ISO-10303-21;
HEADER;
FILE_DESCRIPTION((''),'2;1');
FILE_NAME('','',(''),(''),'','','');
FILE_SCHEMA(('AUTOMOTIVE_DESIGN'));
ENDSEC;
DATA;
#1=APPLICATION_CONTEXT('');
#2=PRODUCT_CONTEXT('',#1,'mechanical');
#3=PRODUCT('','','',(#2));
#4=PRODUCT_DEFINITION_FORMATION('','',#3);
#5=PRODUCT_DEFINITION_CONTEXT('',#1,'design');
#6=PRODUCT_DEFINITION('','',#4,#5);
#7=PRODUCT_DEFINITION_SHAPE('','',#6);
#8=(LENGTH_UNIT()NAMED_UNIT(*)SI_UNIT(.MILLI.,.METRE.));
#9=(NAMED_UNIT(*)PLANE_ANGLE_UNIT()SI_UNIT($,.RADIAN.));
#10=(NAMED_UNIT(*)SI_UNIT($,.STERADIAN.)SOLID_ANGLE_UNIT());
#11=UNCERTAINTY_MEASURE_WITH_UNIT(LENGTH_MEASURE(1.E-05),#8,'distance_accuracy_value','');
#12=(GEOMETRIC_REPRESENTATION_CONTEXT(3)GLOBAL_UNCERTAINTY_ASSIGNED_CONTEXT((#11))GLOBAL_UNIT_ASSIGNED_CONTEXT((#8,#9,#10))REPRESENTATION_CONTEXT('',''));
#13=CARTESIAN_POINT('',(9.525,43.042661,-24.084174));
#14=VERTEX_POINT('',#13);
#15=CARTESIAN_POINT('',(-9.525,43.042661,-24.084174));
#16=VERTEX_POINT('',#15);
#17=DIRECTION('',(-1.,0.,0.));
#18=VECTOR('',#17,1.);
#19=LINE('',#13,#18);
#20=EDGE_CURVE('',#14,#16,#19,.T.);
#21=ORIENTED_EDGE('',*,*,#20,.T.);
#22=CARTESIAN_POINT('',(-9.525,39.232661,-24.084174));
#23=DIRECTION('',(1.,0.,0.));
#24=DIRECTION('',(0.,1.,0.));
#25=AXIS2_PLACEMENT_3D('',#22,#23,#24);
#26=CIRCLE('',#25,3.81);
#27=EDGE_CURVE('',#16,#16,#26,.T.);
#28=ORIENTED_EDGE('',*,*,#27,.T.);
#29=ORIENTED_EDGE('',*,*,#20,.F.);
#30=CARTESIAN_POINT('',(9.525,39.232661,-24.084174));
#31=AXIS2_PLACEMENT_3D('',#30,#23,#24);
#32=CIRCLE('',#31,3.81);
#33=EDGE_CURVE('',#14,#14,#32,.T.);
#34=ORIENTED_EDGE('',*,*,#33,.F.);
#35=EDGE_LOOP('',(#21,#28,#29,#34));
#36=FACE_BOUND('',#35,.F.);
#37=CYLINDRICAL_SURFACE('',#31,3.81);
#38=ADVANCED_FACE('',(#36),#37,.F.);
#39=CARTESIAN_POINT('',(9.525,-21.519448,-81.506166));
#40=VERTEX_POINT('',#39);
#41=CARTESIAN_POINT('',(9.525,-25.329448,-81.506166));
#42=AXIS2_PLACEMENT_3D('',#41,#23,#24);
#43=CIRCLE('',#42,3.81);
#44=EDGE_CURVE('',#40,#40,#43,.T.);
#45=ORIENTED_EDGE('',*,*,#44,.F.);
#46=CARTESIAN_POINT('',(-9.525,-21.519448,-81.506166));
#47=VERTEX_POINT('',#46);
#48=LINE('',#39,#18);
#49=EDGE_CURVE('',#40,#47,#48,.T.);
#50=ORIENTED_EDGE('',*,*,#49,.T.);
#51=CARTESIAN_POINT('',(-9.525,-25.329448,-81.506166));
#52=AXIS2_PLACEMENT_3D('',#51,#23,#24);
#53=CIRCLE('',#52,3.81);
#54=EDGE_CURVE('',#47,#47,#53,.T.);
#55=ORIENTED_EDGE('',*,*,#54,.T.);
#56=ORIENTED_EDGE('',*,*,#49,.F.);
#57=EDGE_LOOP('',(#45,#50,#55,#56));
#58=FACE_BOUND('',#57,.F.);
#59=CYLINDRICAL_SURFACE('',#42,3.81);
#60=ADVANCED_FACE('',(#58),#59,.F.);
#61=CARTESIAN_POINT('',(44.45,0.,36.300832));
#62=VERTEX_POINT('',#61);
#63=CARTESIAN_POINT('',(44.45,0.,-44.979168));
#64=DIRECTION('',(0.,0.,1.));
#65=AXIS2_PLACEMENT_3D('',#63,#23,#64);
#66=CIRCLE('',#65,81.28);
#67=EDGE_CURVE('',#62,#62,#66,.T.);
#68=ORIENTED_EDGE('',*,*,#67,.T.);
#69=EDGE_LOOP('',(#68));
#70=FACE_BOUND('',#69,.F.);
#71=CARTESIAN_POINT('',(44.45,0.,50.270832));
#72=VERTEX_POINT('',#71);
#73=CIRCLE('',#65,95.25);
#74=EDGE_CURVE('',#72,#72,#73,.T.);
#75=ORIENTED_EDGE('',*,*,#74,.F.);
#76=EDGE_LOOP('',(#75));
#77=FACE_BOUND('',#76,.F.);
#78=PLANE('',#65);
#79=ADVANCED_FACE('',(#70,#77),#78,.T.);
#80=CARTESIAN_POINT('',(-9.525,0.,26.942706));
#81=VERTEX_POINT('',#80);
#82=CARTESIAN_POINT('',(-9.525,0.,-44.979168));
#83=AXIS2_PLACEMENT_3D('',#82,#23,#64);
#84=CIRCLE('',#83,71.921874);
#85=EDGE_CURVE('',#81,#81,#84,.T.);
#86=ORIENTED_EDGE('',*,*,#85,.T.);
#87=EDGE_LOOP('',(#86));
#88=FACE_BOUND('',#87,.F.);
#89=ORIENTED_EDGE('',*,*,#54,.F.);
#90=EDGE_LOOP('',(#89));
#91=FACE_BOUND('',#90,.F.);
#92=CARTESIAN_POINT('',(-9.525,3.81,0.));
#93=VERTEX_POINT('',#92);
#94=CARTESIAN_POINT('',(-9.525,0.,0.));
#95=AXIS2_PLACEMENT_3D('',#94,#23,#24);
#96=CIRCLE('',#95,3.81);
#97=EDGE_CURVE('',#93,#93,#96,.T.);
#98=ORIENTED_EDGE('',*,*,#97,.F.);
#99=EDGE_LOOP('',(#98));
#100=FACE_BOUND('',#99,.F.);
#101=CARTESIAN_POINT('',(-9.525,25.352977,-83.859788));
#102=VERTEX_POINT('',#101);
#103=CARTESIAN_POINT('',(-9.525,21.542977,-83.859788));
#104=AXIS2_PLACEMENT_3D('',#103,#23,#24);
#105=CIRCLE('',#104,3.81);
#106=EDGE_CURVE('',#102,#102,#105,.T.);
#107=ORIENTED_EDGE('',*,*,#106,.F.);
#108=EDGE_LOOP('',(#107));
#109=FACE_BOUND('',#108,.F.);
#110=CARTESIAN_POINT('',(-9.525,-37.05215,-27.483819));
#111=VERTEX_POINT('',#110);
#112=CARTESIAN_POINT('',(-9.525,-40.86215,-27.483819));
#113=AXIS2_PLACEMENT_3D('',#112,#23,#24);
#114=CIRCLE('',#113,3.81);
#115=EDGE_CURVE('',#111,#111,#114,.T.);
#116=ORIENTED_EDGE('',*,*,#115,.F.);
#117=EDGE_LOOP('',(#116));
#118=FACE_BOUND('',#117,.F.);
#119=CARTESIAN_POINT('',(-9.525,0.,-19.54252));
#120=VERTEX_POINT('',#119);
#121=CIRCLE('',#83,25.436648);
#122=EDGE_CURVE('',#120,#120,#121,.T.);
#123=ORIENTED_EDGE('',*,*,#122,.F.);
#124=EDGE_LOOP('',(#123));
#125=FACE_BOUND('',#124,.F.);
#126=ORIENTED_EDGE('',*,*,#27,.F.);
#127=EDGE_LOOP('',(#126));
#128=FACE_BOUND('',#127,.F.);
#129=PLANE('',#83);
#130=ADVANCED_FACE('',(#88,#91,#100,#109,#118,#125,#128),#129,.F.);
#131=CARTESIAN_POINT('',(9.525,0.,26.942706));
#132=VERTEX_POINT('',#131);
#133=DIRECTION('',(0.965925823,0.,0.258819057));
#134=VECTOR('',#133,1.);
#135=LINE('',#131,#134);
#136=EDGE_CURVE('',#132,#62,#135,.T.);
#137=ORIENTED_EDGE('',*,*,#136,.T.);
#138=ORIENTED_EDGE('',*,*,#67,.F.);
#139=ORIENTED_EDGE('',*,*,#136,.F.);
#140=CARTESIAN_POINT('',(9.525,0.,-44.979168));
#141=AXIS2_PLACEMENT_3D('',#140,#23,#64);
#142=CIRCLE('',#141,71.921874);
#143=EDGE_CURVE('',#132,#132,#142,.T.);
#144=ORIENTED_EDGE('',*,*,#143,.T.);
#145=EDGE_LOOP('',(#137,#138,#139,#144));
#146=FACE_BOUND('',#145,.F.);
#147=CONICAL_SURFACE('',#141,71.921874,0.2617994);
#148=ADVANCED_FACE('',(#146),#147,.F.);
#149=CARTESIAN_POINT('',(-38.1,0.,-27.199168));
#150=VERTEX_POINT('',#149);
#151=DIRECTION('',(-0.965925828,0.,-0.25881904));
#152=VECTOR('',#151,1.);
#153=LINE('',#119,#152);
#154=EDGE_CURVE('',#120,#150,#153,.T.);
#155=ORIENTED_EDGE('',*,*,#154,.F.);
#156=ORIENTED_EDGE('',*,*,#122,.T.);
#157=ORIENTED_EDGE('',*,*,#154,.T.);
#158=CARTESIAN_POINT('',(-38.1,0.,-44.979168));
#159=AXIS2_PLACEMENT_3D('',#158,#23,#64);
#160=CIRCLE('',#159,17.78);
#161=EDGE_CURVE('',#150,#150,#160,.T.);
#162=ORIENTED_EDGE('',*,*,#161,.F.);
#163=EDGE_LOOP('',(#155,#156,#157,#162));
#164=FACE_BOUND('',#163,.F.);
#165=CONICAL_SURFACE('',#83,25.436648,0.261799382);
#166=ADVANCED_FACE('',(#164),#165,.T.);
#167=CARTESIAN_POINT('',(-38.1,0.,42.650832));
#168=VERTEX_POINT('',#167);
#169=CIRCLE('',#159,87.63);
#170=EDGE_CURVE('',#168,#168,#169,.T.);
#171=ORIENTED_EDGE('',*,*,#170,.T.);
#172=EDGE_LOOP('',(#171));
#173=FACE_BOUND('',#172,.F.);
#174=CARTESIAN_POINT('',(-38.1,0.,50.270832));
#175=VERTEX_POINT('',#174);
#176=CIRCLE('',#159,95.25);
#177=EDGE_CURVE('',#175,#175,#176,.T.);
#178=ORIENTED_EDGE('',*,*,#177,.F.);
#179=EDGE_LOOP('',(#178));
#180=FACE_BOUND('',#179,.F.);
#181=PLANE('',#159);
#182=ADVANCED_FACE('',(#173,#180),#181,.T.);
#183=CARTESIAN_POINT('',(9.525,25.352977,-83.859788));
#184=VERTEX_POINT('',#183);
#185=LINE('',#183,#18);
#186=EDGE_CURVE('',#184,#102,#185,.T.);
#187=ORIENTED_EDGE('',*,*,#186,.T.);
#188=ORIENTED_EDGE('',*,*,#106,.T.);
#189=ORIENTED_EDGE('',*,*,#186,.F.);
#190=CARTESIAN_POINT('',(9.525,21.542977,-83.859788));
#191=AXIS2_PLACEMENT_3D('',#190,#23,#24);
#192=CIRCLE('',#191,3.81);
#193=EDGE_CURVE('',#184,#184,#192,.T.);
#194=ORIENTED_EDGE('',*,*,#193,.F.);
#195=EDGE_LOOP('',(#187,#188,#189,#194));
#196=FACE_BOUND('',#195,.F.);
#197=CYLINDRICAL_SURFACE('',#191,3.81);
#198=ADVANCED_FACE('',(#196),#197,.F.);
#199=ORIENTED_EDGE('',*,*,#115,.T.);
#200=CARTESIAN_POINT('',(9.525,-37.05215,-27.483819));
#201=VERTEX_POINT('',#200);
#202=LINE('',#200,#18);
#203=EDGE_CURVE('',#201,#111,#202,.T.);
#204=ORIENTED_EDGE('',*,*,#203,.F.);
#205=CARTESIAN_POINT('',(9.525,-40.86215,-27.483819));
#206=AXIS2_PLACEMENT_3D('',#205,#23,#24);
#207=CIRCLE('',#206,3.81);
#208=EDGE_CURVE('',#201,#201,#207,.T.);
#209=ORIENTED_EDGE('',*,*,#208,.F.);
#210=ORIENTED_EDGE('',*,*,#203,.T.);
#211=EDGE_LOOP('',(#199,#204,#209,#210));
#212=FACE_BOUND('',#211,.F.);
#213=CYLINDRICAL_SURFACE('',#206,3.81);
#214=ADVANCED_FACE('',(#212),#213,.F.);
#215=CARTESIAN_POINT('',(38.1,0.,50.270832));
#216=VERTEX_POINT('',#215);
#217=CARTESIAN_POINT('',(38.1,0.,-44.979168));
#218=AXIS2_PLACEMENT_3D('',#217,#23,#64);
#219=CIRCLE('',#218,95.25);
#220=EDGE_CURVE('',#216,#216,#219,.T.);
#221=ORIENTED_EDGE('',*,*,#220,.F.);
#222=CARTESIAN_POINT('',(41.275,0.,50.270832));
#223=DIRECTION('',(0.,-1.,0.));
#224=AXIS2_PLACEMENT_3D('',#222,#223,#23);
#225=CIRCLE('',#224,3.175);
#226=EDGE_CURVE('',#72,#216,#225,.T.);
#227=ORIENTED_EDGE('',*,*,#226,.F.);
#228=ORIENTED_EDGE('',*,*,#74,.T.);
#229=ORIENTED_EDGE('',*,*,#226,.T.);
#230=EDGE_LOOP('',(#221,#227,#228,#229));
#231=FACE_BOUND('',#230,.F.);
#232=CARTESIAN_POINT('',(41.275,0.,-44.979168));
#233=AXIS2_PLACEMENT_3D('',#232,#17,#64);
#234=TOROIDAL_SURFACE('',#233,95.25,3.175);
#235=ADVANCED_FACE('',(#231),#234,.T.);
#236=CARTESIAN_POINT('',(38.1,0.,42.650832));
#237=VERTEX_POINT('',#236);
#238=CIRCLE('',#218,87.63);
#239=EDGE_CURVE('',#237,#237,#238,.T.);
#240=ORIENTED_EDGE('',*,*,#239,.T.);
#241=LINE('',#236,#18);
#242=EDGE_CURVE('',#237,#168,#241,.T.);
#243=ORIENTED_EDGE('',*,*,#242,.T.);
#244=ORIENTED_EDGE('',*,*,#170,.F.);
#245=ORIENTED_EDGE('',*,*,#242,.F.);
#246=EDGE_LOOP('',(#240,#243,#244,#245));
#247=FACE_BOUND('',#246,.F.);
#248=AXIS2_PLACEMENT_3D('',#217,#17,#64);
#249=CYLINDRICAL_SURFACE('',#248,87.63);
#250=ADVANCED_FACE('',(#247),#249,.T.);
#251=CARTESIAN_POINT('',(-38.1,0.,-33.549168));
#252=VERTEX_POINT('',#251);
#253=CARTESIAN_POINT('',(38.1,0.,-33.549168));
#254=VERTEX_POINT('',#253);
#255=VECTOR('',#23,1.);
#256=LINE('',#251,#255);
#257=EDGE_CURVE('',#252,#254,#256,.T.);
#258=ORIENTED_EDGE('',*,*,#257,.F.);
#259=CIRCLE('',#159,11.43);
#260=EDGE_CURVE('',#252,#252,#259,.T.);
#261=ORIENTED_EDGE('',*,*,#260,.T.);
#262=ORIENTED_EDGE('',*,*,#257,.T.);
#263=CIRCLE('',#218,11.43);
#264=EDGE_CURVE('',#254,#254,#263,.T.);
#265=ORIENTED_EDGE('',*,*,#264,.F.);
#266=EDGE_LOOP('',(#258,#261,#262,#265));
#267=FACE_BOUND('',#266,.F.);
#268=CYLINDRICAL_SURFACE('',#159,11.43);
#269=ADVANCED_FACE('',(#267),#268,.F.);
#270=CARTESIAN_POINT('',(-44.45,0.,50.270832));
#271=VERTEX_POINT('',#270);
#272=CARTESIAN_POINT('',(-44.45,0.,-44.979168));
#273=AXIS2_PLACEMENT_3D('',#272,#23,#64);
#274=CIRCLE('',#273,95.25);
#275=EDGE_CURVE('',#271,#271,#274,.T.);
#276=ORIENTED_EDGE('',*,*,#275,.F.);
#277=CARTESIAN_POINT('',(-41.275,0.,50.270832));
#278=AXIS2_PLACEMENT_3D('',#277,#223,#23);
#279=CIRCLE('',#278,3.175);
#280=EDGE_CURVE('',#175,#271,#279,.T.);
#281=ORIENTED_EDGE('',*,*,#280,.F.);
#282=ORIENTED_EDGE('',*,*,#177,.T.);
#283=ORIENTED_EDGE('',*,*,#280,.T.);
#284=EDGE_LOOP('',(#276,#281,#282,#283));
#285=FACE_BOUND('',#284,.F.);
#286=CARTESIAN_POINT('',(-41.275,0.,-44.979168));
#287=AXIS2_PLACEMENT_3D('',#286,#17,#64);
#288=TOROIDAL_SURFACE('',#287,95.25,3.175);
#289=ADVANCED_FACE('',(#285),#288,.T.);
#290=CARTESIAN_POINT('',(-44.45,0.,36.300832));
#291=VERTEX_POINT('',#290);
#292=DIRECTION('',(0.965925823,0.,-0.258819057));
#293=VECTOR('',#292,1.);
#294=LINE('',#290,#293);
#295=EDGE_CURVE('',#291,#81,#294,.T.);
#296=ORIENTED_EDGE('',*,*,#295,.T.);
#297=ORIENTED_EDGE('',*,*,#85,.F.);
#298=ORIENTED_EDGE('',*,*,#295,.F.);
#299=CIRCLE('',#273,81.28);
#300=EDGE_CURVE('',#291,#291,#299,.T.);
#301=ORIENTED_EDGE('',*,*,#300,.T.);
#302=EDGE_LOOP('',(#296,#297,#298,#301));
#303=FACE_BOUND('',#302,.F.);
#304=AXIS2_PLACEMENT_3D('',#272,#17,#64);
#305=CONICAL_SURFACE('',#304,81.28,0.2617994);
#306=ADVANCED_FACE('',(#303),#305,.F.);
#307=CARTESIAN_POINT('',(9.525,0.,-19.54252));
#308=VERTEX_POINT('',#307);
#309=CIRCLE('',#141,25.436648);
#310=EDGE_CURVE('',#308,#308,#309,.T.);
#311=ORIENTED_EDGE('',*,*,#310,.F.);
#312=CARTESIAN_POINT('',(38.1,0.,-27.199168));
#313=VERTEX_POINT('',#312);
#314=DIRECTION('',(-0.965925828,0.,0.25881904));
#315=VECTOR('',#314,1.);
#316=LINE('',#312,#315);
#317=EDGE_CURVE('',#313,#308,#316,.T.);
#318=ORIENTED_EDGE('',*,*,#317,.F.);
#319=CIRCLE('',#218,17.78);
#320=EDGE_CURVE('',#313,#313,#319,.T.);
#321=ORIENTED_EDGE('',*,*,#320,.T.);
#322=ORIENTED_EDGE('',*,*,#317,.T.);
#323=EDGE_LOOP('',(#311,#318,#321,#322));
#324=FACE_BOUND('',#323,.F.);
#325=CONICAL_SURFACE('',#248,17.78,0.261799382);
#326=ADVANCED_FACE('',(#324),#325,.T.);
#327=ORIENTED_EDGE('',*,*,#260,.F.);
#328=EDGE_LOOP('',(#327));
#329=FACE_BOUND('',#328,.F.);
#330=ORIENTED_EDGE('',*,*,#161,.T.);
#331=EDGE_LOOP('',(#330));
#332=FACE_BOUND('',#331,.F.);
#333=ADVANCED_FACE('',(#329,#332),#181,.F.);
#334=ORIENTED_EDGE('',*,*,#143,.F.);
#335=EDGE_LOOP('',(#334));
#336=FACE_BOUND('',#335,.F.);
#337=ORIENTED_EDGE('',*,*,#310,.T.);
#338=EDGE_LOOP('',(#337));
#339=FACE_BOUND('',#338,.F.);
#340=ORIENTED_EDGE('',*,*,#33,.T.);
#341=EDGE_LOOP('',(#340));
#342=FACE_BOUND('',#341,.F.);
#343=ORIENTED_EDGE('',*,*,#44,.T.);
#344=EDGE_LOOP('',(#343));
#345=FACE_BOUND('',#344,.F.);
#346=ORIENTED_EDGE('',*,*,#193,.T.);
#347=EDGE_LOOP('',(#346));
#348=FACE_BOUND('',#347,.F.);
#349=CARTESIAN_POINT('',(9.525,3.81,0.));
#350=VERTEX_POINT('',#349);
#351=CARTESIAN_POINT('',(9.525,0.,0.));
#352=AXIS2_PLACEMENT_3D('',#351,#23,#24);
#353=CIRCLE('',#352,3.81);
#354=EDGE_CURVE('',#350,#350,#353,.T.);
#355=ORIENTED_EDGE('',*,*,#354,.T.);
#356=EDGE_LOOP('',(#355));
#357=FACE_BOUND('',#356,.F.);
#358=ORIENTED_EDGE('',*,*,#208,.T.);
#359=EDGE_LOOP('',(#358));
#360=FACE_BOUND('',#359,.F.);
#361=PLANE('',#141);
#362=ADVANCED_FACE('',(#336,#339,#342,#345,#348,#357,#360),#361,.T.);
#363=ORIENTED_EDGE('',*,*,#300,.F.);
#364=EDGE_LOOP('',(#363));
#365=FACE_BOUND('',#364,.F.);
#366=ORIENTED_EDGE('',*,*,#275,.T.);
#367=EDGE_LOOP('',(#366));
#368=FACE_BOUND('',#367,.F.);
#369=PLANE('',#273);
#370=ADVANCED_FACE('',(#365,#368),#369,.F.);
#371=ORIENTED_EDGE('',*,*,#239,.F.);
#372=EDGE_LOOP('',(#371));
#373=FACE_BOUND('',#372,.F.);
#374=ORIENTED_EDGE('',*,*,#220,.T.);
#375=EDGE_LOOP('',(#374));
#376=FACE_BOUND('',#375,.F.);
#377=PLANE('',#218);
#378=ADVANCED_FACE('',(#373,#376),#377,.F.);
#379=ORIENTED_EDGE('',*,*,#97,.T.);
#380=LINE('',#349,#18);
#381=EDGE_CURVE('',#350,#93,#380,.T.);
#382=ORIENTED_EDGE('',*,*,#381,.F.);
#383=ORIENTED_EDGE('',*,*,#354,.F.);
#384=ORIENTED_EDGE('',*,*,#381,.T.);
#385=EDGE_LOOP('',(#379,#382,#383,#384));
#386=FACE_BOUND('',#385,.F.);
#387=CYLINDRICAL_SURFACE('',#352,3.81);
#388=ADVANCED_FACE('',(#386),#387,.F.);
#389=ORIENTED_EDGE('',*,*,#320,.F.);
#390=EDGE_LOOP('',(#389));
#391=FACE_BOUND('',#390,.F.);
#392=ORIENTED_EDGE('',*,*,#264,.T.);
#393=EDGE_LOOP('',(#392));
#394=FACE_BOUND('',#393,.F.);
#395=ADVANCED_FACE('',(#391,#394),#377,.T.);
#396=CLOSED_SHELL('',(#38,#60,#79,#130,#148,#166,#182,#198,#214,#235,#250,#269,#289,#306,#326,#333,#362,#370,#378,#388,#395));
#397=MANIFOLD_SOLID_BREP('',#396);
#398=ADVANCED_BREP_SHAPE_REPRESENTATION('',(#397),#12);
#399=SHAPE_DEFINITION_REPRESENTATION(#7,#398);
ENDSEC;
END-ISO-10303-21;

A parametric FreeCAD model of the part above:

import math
import FreeCAD as App
import Part
import Sketcher
Q = App.Units.Quantity

doc = App.newDocument("Part")
body = doc.addObject("PartDesign::Body", "Body")

# Sketch on XZ plane
sketch1 = body.newObject("Sketcher::SketchObject", "Sketch")
sketch1.AttachmentSupport = (doc.getObject("XZ_Plane"), [""])
sketch1.MapMode = "FlatFace"
sketch1.addGeometry(Part.LineSegment(App.Vector(-38.1, -27.2, 0), App.Vector(-38.1, -33.5, 0)), False)
sketch1.addGeometry(Part.LineSegment(App.Vector(-38.1, -33.5, 0), App.Vector(38.1, -33.5, 0)), False)
sketch1.addGeometry(Part.LineSegment(App.Vector(38.1, -33.5, 0), App.Vector(38.1, -27.2, 0)), False)
sketch1.addGeometry(Part.LineSegment(App.Vector(38.1, -27.2, 0), App.Vector(9.5, -19.5, 0)), False)
sketch1.addGeometry(Part.LineSegment(App.Vector(9.5, -19.5, 0), App.Vector(9.5, 26.9, 0)), False)
sketch1.addGeometry(Part.LineSegment(App.Vector(9.5, 26.9, 0), App.Vector(44.5, 36.3, 0)), False)
sketch1.addGeometry(Part.LineSegment(App.Vector(44.5, 36.3, 0), App.Vector(44.5, 50.3, 0)), False)
sketch1.addGeometry(Part.ArcOfCircle(Part.Circle(App.Vector(41.3, 50.3, 0), App.Vector(0, 0, 1), 3.2), math.radians(0), math.radians(180)), False)
sketch1.addGeometry(Part.LineSegment(App.Vector(38.1, 50.3, 0), App.Vector(38.1, 42.7, 0)), False)
sketch1.addGeometry(Part.LineSegment(App.Vector(38.1, 42.7, 0), App.Vector(-38.1, 42.7, 0)), False)
sketch1.addGeometry(Part.LineSegment(App.Vector(-38.1, 42.7, 0), App.Vector(-38.1, 50.3, 0)), False)
sketch1.addGeometry(Part.ArcOfCircle(Part.Circle(App.Vector(-41.3, 50.3, 0), App.Vector(0, 0, 1), 3.2), math.radians(0), math.radians(180)), False)
sketch1.addGeometry(Part.LineSegment(App.Vector(-44.5, 50.3, 0), App.Vector(-44.5, 36.3, 0)), False)
sketch1.addGeometry(Part.LineSegment(App.Vector(-44.5, 36.3, 0), App.Vector(-9.5, 26.9, 0)), False)
sketch1.addGeometry(Part.LineSegment(App.Vector(-9.5, 26.9, 0), App.Vector(-9.5, -19.5, 0)), False)
sketch1.addGeometry(Part.LineSegment(App.Vector(-9.5, -19.5, 0), App.Vector(-38.1, -27.2, 0)), False)
sketch1.addGeometry(Part.LineSegment(App.Vector(-44.5, -45, 0), App.Vector(44.5, -45, 0)), True)  # axis
sketch1.addConstraint(Sketcher.Constraint("Coincident", 0, 2, 1, 1))
sketch1.addConstraint(Sketcher.Constraint("Coincident", 1, 2, 2, 1))
sketch1.addConstraint(Sketcher.Constraint("Coincident", 2, 2, 3, 1))
sketch1.addConstraint(Sketcher.Constraint("Coincident", 3, 2, 4, 1))
sketch1.addConstraint(Sketcher.Constraint("Coincident", 4, 2, 5, 1))
sketch1.addConstraint(Sketcher.Constraint("Coincident", 5, 2, 6, 1))
sketch1.addConstraint(Sketcher.Constraint("Tangent", 6, 2, 7, 1))
sketch1.addConstraint(Sketcher.Constraint("Tangent", 7, 2, 8, 1))
sketch1.addConstraint(Sketcher.Constraint("Coincident", 8, 2, 9, 1))
sketch1.addConstraint(Sketcher.Constraint("Coincident", 9, 2, 10, 1))
sketch1.addConstraint(Sketcher.Constraint("Tangent", 10, 2, 11, 1))
sketch1.addConstraint(Sketcher.Constraint("Tangent", 11, 2, 12, 1))
sketch1.addConstraint(Sketcher.Constraint("Coincident", 12, 2, 13, 1))
sketch1.addConstraint(Sketcher.Constraint("Coincident", 13, 2, 14, 1))
sketch1.addConstraint(Sketcher.Constraint("Coincident", 14, 2, 15, 1))
sketch1.addConstraint(Sketcher.Constraint("Coincident", 15, 2, 0, 1))
sketch1.addConstraint(Sketcher.Constraint("Vertical", 0))
sketch1.addConstraint(Sketcher.Constraint("Horizontal", 1))
sketch1.addConstraint(Sketcher.Constraint("Vertical", 2))
sketch1.addConstraint(Sketcher.Constraint("Vertical", 4))
sketch1.addConstraint(Sketcher.Constraint("Vertical", 6))
sketch1.addConstraint(Sketcher.Constraint("Vertical", 8))
sketch1.addConstraint(Sketcher.Constraint("Horizontal", 9))
sketch1.addConstraint(Sketcher.Constraint("Vertical", 10))
sketch1.addConstraint(Sketcher.Constraint("Vertical", 12))
sketch1.addConstraint(Sketcher.Constraint("Vertical", 14))
sketch1.addConstraint(Sketcher.Constraint("Horizontal", 16))
sketch1.addConstraint(Sketcher.Constraint("Equal", 7, 11))
sketch1.addConstraint(Sketcher.Constraint("Symmetric", 7, 3, 11, 3, -2))
sketch1.addConstraint(Sketcher.Constraint("Symmetric", 4, 2, 13, 2, -2))
sketch1.addConstraint(Sketcher.Constraint("Symmetric", 2, 2, 15, 2, -2))
sketch1.addConstraint(Sketcher.Constraint("Parallel", 3, 13))
sketch1.addConstraint(Sketcher.Constraint("Parallel", 5, 15))
sketch1.addConstraint(Sketcher.Constraint("Horizontal", 5, 2, 12, 2))
sketch1.addConstraint(Sketcher.Constraint("Vertical", 2, 2, 7, 2))
sketch1.addConstraint(Sketcher.Constraint("Vertical", 12, 2, 16, 1))
sketch1.addConstraint(Sketcher.Constraint("Vertical", 6, 2, 16, 2))
sketch1.addConstraint(Sketcher.Constraint("DistanceX", 1, 1, 1, 2, Q("3 in")))
sketch1.addConstraint(Sketcher.Constraint("DistanceX", 16, 1, 16, 2, Q("3.5 in")))
sketch1.addConstraint(Sketcher.Constraint("DistanceY", 8, 2, 8, 1, Q("0.3 in")))
sketch1.addConstraint(Sketcher.Constraint("Angle", 3, Q("165 deg")))
sketch1.addConstraint(Sketcher.Constraint("DistanceX", 11, 3, 3, 2, Q("2 in")))
sketch1.addConstraint(Sketcher.Constraint("DistanceY", 0, 2, 9, 2, Q("3 in")))
sketch1.addConstraint(Sketcher.Constraint("DistanceY", 0, 2, 0, 1, Q("0.25 in")))
sketch1.addConstraint(Sketcher.Constraint("DistanceY", 6, 1, 6, 2, Q("0.55 in")))
sketch1.addConstraint(Sketcher.Constraint("DistanceY", 16, 1, 15, 2, Q("0.7 in")))
sketch1.addConstraint(Sketcher.Constraint("DistanceY", 0, 2, -1, 1, 33.549168))
revolution = body.newObject("PartDesign::Revolution", "Revolution")
revolution.Profile = sketch1
revolution.ReferenceAxis = (sketch1, ["Axis0"])
revolution.Angle = 360

# Sketch on YZ plane
sketch2 = body.newObject("Sketcher::SketchObject", "Sketch001")
sketch2.AttachmentSupport = (doc.getObject("YZ_Plane"), [""])
sketch2.MapMode = "FlatFace"
sketch2.AttachmentOffset = App.Placement(App.Vector(0, 0, 0.375 * 25.4), App.Rotation())
sketch2.addGeometry(Part.Circle(App.Vector(0, 0, 0), App.Vector(0, 0, 1), 3.8), False)
sketch2.addGeometry(Part.Circle(App.Vector(39.2, -24.1, 0), App.Vector(0, 0, 1), 3.8), False)
sketch2.addGeometry(Part.Circle(App.Vector(-40.9, -27.5, 0), App.Vector(0, 0, 1), 3.8), False)
sketch2.addGeometry(Part.Circle(App.Vector(-25.3, -81.5, 0), App.Vector(0, 0, 1), 3.8), False)
sketch2.addGeometry(Part.Circle(App.Vector(21.5, -83.9, 0), App.Vector(0, 0, 1), 3.8), False)
sketch2.addConstraint(Sketcher.Constraint("Coincident", 0, 3, -1, 1))
sketch2.addConstraint(Sketcher.Constraint("Equal", 0, 1))
sketch2.addConstraint(Sketcher.Constraint("Equal", 1, 2))
sketch2.addConstraint(Sketcher.Constraint("Equal", 2, 3))
sketch2.addConstraint(Sketcher.Constraint("Equal", 3, 4))
sketch2.addConstraint(Sketcher.Constraint("Diameter", 0, Q("0.3 in")))
sketch2.addConstraint(Sketcher.Constraint("DistanceX", -1, 1, 1, 3, 39.232661))
sketch2.addConstraint(Sketcher.Constraint("DistanceX", 2, 3, -1, 1, 40.86215))
sketch2.addConstraint(Sketcher.Constraint("DistanceY", 2, 3, -1, 1, 27.483819))
sketch2.addConstraint(Sketcher.Constraint("DistanceX", 3, 3, 1, 3, 64.562109))
sketch2.addConstraint(Sketcher.Constraint("DistanceY", 3, 3, 1, 3, 57.421992))
sketch2.addConstraint(Sketcher.Constraint("DistanceY", 4, 3, 2, 3, 56.375969))
sketch2.addConstraint(Sketcher.Constraint("DistanceY", 1, 3, -1, 1, 24.084174))
sketch2.addConstraint(Sketcher.Constraint("DistanceX", -1, 1, 4, 3, 21.542977))
pocket1 = body.newObject("PartDesign::Pocket", "Pocket")
pocket1.Profile = sketch2
pocket1.Type = "ThroughAll"

doc.recompute()
